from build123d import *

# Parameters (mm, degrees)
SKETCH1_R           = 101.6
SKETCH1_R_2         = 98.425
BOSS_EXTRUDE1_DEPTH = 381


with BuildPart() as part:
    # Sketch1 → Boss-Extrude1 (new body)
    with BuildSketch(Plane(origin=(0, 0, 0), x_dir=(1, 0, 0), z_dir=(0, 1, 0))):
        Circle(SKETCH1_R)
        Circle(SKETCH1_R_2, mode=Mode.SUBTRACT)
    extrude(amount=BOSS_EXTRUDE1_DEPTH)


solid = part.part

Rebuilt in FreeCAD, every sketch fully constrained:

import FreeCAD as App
import Part
import Sketcher
from FreeCAD import Vector
Q = App.Units.Quantity

doc = App.newDocument("Part")
body = doc.addObject("PartDesign::Body", "Body")

# Sketch on XZ plane
sketch1 = body.newObject("Sketcher::SketchObject", "Sketch")
sketch1.AttachmentSupport = (doc.getObject("XZ_Plane"), [""])
sketch1.MapMode = "FlatFace"
sketch1.addGeometry(Part.Circle(Vector(0, 0, 0), Vector(0, 0, 1), 102), False)
sketch1.addGeometry(Part.Circle(Vector(0, 0, 0), Vector(0, 0, 1), 98), False)
sketch1.addConstraint(Sketcher.Constraint("Coincident", 0, 3, -1, 1))
sketch1.addConstraint(Sketcher.Constraint("Coincident", 1, 3, -1, 1))
sketch1.addConstraint(Sketcher.Constraint("Diameter", 0, Q("8 in")))
sketch1.addConstraint(Sketcher.Constraint("Diameter", 1, Q("7.75 in")))
pad1 = body.newObject("PartDesign::Pad", "Pad")
pad1.Profile = sketch1
pad1.Length = Q("15 in")
pad1.Reversed = True

doc.recompute()
